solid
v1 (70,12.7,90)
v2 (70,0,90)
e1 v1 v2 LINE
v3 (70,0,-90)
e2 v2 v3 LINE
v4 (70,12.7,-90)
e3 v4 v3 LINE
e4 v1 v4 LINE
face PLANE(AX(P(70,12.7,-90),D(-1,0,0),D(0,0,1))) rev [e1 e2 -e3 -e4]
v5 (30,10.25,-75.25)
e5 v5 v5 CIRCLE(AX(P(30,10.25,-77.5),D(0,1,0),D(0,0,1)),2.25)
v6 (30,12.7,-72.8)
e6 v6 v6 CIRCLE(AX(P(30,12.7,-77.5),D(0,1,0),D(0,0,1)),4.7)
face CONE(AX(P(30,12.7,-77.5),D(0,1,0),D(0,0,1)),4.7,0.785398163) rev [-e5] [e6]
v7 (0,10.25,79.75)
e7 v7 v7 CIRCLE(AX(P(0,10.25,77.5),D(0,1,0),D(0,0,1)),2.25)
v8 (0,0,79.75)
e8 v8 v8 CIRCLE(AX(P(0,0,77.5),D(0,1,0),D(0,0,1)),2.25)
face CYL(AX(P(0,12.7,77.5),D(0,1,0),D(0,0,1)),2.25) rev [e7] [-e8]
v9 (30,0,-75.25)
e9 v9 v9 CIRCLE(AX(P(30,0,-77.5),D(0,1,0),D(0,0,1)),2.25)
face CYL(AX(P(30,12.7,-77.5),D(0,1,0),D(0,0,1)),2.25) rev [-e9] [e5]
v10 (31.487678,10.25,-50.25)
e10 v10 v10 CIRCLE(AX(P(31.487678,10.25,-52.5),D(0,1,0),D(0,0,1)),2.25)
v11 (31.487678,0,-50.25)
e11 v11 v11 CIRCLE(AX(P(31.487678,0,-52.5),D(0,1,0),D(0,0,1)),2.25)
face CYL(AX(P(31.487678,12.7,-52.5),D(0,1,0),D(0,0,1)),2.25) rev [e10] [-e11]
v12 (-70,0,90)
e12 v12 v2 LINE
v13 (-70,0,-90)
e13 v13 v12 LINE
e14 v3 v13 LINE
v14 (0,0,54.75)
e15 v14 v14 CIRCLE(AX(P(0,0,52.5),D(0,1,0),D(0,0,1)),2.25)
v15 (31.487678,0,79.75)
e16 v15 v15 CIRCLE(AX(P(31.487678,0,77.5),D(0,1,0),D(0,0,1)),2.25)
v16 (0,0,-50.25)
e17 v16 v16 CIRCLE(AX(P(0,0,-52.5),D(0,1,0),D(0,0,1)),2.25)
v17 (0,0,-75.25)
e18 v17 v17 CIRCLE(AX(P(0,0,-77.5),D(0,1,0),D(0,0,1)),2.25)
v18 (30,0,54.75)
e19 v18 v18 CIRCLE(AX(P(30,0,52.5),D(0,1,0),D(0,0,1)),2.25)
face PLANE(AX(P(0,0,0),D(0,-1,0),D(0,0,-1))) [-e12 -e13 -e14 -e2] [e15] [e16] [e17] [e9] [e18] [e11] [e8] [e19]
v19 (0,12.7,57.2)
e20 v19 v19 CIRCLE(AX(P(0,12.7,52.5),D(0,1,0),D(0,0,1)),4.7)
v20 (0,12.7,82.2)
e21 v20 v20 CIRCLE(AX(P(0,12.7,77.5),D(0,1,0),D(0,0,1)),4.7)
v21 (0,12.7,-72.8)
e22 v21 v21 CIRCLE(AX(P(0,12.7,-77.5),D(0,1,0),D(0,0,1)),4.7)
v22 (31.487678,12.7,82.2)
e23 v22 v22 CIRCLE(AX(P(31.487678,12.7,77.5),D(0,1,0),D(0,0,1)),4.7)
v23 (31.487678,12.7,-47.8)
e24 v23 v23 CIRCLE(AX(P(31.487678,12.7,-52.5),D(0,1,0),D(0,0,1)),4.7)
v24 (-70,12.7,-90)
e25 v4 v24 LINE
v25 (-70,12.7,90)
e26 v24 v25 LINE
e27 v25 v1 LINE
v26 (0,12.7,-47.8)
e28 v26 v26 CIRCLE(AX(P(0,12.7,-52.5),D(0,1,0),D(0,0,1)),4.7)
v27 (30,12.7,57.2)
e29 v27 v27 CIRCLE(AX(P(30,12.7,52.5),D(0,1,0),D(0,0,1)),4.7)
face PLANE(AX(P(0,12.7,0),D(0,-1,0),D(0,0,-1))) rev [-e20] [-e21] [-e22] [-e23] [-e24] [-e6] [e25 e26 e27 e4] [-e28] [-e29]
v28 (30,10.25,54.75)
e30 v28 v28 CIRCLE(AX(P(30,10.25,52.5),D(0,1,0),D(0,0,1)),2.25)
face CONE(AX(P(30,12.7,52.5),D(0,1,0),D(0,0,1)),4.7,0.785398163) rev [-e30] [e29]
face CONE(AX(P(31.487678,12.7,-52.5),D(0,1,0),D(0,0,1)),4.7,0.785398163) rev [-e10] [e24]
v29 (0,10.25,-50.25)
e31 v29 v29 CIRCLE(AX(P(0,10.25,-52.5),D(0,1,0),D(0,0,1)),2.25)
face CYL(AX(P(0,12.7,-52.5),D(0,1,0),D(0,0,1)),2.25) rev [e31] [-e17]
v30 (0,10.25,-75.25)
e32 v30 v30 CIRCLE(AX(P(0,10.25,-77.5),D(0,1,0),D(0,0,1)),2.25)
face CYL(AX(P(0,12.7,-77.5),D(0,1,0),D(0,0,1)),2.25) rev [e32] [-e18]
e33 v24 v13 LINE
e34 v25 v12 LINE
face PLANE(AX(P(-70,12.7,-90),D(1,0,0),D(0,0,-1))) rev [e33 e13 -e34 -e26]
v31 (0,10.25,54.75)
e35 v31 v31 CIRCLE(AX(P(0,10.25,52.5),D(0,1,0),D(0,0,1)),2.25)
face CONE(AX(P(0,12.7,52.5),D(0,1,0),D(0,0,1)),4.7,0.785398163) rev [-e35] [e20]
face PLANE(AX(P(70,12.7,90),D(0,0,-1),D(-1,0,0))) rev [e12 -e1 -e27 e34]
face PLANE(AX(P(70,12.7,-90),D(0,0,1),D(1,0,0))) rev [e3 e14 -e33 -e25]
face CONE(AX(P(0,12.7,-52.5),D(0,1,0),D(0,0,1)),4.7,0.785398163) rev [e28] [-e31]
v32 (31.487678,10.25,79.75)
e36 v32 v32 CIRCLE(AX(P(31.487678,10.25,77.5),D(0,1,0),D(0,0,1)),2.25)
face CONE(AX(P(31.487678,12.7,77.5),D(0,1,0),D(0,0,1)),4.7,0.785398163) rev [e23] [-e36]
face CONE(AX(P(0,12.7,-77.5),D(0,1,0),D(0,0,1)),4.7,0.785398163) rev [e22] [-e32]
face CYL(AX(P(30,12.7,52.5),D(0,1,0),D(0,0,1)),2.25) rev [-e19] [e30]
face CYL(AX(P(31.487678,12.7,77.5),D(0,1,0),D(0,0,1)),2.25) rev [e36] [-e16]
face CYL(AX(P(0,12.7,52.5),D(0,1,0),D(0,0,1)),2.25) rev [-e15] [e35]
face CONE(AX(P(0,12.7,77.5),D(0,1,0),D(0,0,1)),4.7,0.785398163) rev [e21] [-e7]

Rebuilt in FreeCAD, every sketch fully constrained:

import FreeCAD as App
import Part
import Sketcher
Q = App.Units.Quantity


def add_polygon(sketch, points):
    """Adds a closed chain of lines whose ends are joined by coincident constraints."""
    first, n = sketch.GeometryCount, len(points)
    for a, b in zip(points, points[1:] + points[:1]):
        sketch.addGeometry(Part.LineSegment(App.Vector(*a, 0), App.Vector(*b, 0)), False)
    for i in range(n):
        sketch.addConstraint(Sketcher.Constraint("Coincident", first + i, 2, first + (i + 1) % n, 1))

doc = App.newDocument("Part")
params = doc.addObject("Spreadsheet::Sheet", "Params")
for row, (alias, value) in enumerate([
    ("sketch1_width", "140 mm"),
    ("sketch1_height", "180 mm"),
    ("pad1_length", "12.7 mm"),
    ("sketch2_diameter", "4.5 mm"),
    ("hole_diameter", "4.5 mm"),
    ("hole_csink_diameter", "9.4 mm"),
], start=1):
    params.set(f"A{row}", alias)
    params.set(f"B{row}", "=" + value)
    params.setAlias(f"B{row}", alias)

body = doc.addObject("PartDesign::Body", "Body")

# Sketch on XZ plane
sketch1 = body.newObject("Sketcher::SketchObject", "Sketch")
sketch1.AttachmentSupport = (doc.getObject("XZ_Plane"), [""])
sketch1.MapMode = "FlatFace"
add_polygon(sketch1, [(-70, -90), (-70, 90), (70, 90), (70, -90)])  # lines 0-3
sketch1.addConstraint([
    Sketcher.Constraint("Vertical", 0),
    Sketcher.Constraint("Horizontal", 1),
    Sketcher.Constraint("Vertical", 2),
    Sketcher.Constraint("Horizontal", 3),
    Sketcher.Constraint("Symmetric", 0, 2, 2, 2, -1, 1),
    Sketcher.Constraint("DistanceX", 1, 1, 1, 2, Q("140 mm")),
    Sketcher.Constraint("DistanceY", 0, 1, 0, 2, Q("180 mm")),
])
sketch1.setExpression("Constraints[9]", "Params.sketch1_width")
sketch1.setExpression("Constraints[10]", "Params.sketch1_height")
pad1 = body.newObject("PartDesign::Pad", "Pad")
pad1.Profile = sketch1
pad1.setExpression("Length", "Params.pad1_length")
pad1.Reversed = True

# Sketch on XZ plane
sketch2 = body.newObject("Sketcher::SketchObject", "Sketch001")
sketch2.AttachmentSupport = (doc.getObject("XZ_Plane"), [""])
sketch2.MapMode = "FlatFace"
sketch2.AttachmentOffset = App.Placement(App.Vector(0, 0, -12.7), App.Rotation())
sketch2.addGeometry([
    Part.Circle(App.Vector(0, 52.5, 0), App.Vector(0, 0, 1), 2.2),  # 0
    Part.Circle(App.Vector(30, 52.5, 0), App.Vector(0, 0, 1), 2.2),  # 1
    Part.Circle(App.Vector(31.5, 77.5, 0), App.Vector(0, 0, 1), 2.2),  # 2
    Part.Circle(App.Vector(0, 77.5, 0), App.Vector(0, 0, 1), 2.2),  # 3
    Part.Circle(App.Vector(0, -77.5, 0), App.Vector(0, 0, 1), 2.2),  # 4
    Part.Circle(App.Vector(30, -77.5, 0), App.Vector(0, 0, 1), 2.2),  # 5
    Part.Circle(App.Vector(31.5, -52.5, 0), App.Vector(0, 0, 1), 2.2),  # 6
    Part.Circle(App.Vector(0, -52.5, 0), App.Vector(0, 0, 1), 2.2),  # 7
], False)
sketch2.addConstraint([
    Sketcher.Constraint("Equal", 0, 1),
    Sketcher.Constraint("Equal", 1, 2),
    Sketcher.Constraint("Equal", 2, 3),
    Sketcher.Constraint("Equal", 3, 4),
    Sketcher.Constraint("Equal", 4, 5),
    Sketcher.Constraint("Equal", 5, 6),
    Sketcher.Constraint("Equal", 6, 7),
    Sketcher.Constraint("Symmetric", 3, 3, 4, 3, -1, 1),
    Sketcher.Constraint("Symmetric", 0, 3, 7, 3, -1, 1),
    Sketcher.Constraint("PointOnObject", 0, 3, -2),
    Sketcher.Constraint("PointOnObject", 3, 3, -2),
    Sketcher.Constraint("Horizontal", 0, 3, 1, 3),
    Sketcher.Constraint("Horizontal", 2, 3, 3, 3),
    Sketcher.Constraint("Horizontal", 4, 3, 5, 3),
    Sketcher.Constraint("Horizontal", 6, 3, 7, 3),
    Sketcher.Constraint("Vertical", 1, 3, 5, 3),
    Sketcher.Constraint("Vertical", 2, 3, 6, 3),
    Sketcher.Constraint("Diameter", 0, Q("4.5 mm")),
    Sketcher.Constraint("DistanceX", -1, 1, 1, 3, Q("30 mm")),
    Sketcher.Constraint("DistanceY", 1, 3, 2, 3, Q("25 mm")),
    Sketcher.Constraint("DistanceY", 4, 3, 0, 3, Q("130 mm")),
    Sketcher.Constraint("DistanceX", -1, 1, 2, 3, Q("31.487678 mm")),
])
sketch2.setExpression("Constraints[17]", "Params.sketch2_diameter")
doc.recompute()
hole = body.newObject("PartDesign::Hole", "Hole")
hole.Profile = sketch2
hole.ThreadType = "None"
hole.setExpression("Diameter", "Params.hole_diameter")
hole.DepthType = "ThroughAll"
hole.HoleCutType = "Countersink"
hole.setExpression("HoleCutDiameter", "Params.hole_csink_diameter")
hole.HoleCutCountersinkAngle = 90
hole.Reversed = True

doc.recompute()
